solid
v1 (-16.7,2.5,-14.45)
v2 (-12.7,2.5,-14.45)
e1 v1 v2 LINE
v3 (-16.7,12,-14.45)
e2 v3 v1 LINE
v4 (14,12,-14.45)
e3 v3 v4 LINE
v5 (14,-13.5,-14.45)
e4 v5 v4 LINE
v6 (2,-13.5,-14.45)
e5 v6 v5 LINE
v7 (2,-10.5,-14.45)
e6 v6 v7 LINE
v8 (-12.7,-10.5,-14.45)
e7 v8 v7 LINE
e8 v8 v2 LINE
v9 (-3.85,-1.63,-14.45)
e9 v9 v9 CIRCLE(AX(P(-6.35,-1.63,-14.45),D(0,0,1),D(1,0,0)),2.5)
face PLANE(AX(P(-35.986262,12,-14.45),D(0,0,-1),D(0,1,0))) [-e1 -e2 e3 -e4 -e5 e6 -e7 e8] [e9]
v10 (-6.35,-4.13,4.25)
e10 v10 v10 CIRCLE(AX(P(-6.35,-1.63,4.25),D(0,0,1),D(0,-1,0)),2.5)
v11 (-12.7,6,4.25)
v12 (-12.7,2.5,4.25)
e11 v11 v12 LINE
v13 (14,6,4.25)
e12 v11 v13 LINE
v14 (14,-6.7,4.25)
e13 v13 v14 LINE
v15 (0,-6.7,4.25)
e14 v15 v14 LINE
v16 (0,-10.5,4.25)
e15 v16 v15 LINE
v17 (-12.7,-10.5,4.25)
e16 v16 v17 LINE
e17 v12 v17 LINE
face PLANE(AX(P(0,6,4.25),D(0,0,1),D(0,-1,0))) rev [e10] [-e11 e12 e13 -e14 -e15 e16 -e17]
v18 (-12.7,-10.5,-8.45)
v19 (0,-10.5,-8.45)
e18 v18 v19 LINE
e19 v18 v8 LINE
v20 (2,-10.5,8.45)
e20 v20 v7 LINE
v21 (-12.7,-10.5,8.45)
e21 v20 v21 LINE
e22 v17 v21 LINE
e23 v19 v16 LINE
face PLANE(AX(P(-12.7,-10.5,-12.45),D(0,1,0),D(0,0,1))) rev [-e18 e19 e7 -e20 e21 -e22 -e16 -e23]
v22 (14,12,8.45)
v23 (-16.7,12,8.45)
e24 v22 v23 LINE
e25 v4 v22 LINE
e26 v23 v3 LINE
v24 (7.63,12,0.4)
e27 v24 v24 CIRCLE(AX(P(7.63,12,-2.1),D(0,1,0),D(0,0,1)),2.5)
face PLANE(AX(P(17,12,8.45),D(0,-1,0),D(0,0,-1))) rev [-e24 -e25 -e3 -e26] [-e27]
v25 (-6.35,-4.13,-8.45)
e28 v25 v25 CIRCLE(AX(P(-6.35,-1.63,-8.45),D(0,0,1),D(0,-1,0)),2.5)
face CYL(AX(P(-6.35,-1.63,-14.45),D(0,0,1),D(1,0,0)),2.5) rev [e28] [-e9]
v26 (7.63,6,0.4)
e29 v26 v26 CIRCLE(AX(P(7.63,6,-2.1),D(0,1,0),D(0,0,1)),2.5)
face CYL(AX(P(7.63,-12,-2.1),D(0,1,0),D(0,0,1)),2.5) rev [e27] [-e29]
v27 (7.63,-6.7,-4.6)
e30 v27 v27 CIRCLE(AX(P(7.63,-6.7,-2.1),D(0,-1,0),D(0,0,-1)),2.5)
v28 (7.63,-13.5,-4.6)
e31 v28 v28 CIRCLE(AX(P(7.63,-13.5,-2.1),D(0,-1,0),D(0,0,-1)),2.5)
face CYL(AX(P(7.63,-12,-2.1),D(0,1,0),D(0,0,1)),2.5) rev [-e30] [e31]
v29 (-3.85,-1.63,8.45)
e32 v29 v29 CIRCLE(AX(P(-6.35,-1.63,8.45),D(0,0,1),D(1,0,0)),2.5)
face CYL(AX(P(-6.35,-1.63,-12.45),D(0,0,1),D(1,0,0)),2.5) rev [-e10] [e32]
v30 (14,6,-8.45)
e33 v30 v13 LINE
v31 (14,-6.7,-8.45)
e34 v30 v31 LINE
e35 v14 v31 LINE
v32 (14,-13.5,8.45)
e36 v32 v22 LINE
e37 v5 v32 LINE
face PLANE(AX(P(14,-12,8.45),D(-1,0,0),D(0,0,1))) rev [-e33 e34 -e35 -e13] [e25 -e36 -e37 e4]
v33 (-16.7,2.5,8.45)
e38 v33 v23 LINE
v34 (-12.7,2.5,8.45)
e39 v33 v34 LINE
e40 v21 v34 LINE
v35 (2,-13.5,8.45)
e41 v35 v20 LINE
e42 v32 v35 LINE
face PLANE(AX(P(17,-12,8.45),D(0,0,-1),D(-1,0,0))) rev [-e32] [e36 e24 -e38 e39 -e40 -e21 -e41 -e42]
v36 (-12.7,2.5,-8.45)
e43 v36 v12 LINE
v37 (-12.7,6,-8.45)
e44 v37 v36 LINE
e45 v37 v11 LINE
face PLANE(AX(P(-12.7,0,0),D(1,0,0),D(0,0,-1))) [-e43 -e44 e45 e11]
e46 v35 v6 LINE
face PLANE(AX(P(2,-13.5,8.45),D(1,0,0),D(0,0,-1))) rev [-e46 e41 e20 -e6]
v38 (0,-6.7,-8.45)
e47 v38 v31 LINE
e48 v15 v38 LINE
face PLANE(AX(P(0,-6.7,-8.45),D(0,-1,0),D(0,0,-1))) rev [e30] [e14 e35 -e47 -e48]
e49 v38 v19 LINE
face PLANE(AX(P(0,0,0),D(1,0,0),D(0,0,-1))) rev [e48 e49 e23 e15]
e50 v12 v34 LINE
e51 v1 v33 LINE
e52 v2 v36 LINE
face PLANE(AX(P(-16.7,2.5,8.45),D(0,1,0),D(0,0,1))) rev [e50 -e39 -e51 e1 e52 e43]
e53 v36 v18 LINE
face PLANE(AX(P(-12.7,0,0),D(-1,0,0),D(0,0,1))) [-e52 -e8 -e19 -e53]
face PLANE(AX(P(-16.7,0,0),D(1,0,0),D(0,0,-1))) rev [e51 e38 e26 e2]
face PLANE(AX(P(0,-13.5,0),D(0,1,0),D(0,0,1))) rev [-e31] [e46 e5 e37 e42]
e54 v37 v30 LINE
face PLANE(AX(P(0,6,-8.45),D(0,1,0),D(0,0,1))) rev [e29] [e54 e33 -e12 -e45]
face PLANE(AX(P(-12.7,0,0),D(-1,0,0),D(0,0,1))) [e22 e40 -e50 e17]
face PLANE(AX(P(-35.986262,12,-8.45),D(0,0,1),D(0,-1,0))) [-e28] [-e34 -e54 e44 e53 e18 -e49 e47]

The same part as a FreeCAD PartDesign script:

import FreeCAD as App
import Part
import Sketcher
from FreeCAD import Vector


def add_polygon(sketch, points):
    """Adds a closed chain of lines whose ends are joined by coincident constraints."""
    first, n = sketch.GeometryCount, len(points)
    for a, b in zip(points, points[1:] + points[:1]):
        sketch.addGeometry(Part.LineSegment(App.Vector(*a, 0), App.Vector(*b, 0)), False)
    for i in range(n):
        sketch.addConstraint(Sketcher.Constraint("Coincident", first + i, 2, first + (i + 1) % n, 1))

doc = App.newDocument("Part")
params = doc.addObject("Spreadsheet::Sheet", "Params")
for row, (alias, value) in enumerate([
    ("sketch1_width", "24 mm"),
    ("sketch1_height", "16.9 mm"),
    ("pad1_length", "17 mm"),
    ("sketch2_width", "12.7 mm"),
    ("sketch3_diameter", "5 mm"),
    ("sketch4_width", "6 mm"),
    ("sketch4_width2", "18 mm"),
    ("sketch4_height", "12.7 mm"),
    ("sketch4_height2", "4.2 mm"),
    ("pad2_length", "12.7 mm"),
    ("sketch5_width", "17 mm"),
    ("sketch5_height", "16 mm"),
    ("pad3_length", "4 mm"),
    ("sketch6_height", "24 mm"),
    ("sketch6_width", "12.7 mm"),
    ("sketch6_height2", "11.5 mm"),
    ("pad4_length", "4 mm"),
    ("sketch7_diameter", "5 mm"),
    ("sketch8_width", "3 mm"),
    ("sketch8_height", "16.9 mm"),
    ("sketch9_width", "12.7 mm"),
    ("sketch9_height", "1.5 mm"),
    ("sketch10_height", "4 mm"),
    ("sketch10_width", "3.8 mm"),
    ("sketch10_width2", "1.5 mm"),
    ("sketch10_height2", "12.7 mm"),
    ("sketch10_height3", "20.9 mm"),
    ("pocket6_length", "25.039395 mm"),
    ("pocket6_length2", "2 mm"),
    ("sketch11_width", "24 mm"),
    ("sketch11_height", "4 mm"),
    ("sketch12_width", "1.5 mm"),
    ("sketch12_height", "20.9 mm"),
    ("sketch13_height", "4 mm"),
    ("sketch13_width", "22.5 mm"),
    ("sketch14_width", "4 mm"),
    ("sketch14_height", "17 mm"),
    ("sketch15_width", "3.8 mm"),
    ("sketch15_height", "12.7 mm"),
    ("pad5_length", "2 mm"),
    ("sketch16_height", "6 mm"),
    ("sketch16_width", "22.5 mm"),
    ("pad6_length", "26.7 mm"),
    ("sketch17_width", "9.5 mm"),
    ("sketch17_height", "22.9 mm"),
    ("pad7_length", "4 mm"),
    ("sketch18_diameter", "5 mm"),
    ("sketch19_diameter", "5 mm"),
    ("sketch19_width", "12 mm"),
    ("sketch19_height", "22.9 mm"),
    ("pad8_length", "3 mm"),
], start=1):
    params.set(f"A{row}", alias)
    params.set(f"B{row}", "=" + value)
    params.setAlias(f"B{row}", alias)

body = doc.addObject("PartDesign::Body", "Body")

# Sketch on YZ plane
sketch1 = body.newObject("Sketcher::SketchObject", "Sketch")
sketch1.AttachmentSupport = (doc.getObject("YZ_Plane"), [""])
sketch1.MapMode = "FlatFace"
add_polygon(sketch1, [(12, 8), (-12, 8), (-12, -8), (12, -8)])  # lines 0-3
sketch1.addConstraint(Sketcher.Constraint("Horizontal", 0))
sketch1.addConstraint(Sketcher.Constraint("Vertical", 1))
sketch1.addConstraint(Sketcher.Constraint("Horizontal", 2))
sketch1.addConstraint(Sketcher.Constraint("Vertical", 3))
sketch1.addConstraint(Sketcher.Constraint("Symmetric", 0, 2, 2, 2, -1, 1))
sketch1.addConstraint(Sketcher.Constraint("DistanceX", 0, 2, 0, 1, 24.0))
sketch1.addConstraint(Sketcher.Constraint("DistanceY", 1, 2, 1, 1, 16.9))
sketch1.setExpression("Constraints[9]", "Params.sketch1_width")
sketch1.setExpression("Constraints[10]", "Params.sketch1_height")
pad1 = body.newObject("PartDesign::Pad", "Pad")
pad1.Profile = sketch1
pad1.setExpression("Length", "Params.pad1_length")

# Sketch on YZ plane
sketch2 = body.newObject("Sketcher::SketchObject", "Sketch001")
sketch2.AttachmentSupport = (doc.getObject("YZ_Plane"), [""])
sketch2.MapMode = "FlatFace"
sketch2.AttachmentOffset = App.Placement(Vector(0, 0, 17), App.Rotation())
add_polygon(sketch2, [(6, 4), (-7, 4), (-7, -8), (6, -8)])  # lines 0-3
sketch2.addConstraint(Sketcher.Constraint("Horizontal", 0))
sketch2.addConstraint(Sketcher.Constraint("Vertical", 1))
sketch2.addConstraint(Sketcher.Constraint("Horizontal", 2))
sketch2.addConstraint(Sketcher.Constraint("Vertical", 3))
sketch2.addConstraint(Sketcher.Constraint("Equal", 2, 1))
sketch2.addConstraint(Sketcher.Constraint("DistanceX", 0, 2, 0, 1, 12.7))
sketch2.addConstraint(Sketcher.Constraint("DistanceX", -1, 1, 2, 2, 6.0))
sketch2.addConstraint(Sketcher.Constraint("DistanceY", -1, 1, 0, 2, 4.25))
sketch2.setExpression("Constraints[9]", "Params.sketch2_width")
pocket1 = body.newObject("PartDesign::Pocket", "Pocket")
pocket1.Profile = sketch2
pocket1.Type = "ThroughAll"

# Sketch on XZ plane
sketch3 = body.newObject("Sketcher::SketchObject", "Sketch002")
sketch3.AttachmentSupport = (doc.getObject("XZ_Plane"), [""])
sketch3.MapMode = "FlatFace"
sketch3.AttachmentOffset = App.Placement(Vector(0, 0, -12), App.Rotation())
sketch3.addGeometry(Part.Circle(Vector(7.6, -2.1, 0), Vector(0, 0, 1), 2.5), False)
sketch3.addConstraint(Sketcher.Constraint("Diameter", 0, 5.0))
sketch3.addConstraint(Sketcher.Constraint("DistanceY", 0, 3, -1, 1, 2.1))
sketch3.addConstraint(Sketcher.Constraint("DistanceX", -1, 1, 0, 3, 7.63))
sketch3.setExpression("Constraints[0]", "Params.sketch3_diameter")
pocket2 = body.newObject("PartDesign::Pocket", "Pocket001")
pocket2.Profile = sketch3
pocket2.Type = "ThroughAll"
pocket2.Reversed = True

# Sketch on YZ plane
sketch4 = body.newObject("Sketcher::SketchObject", "Sketch003")
sketch4.AttachmentSupport = (doc.getObject("YZ_Plane"), [""])
sketch4.MapMode = "FlatFace"
add_polygon(sketch4, [(12, -8.4), (6, -8.4), (6, 4.2), (-12, 4.2), (-12, 8.4), (12, 8.4)])  # lines 0-5
sketch4.addConstraint(Sketcher.Constraint("Horizontal", 0))
sketch4.addConstraint(Sketcher.Constraint("Vertical", 1))
sketch4.addConstraint(Sketcher.Constraint("Horizontal", 2))
sketch4.addConstraint(Sketcher.Constraint("Vertical", 3))
sketch4.addConstraint(Sketcher.Constraint("Horizontal", 4))
sketch4.addConstraint(Sketcher.Constraint("Vertical", 5))
sketch4.addConstraint(Sketcher.Constraint("Symmetric", 3, 2, 5, 2, -1, 1))
sketch4.addConstraint(Sketcher.Constraint("DistanceX", 0, 2, 0, 1, 6.0))
sketch4.addConstraint(Sketcher.Constraint("DistanceX", 2, 2, 2, 1, 18.0))
sketch4.addConstraint(Sketcher.Constraint("DistanceY", 1, 1, 1, 2, 12.7))
sketch4.addConstraint(Sketcher.Constraint("DistanceY", 3, 1, 3, 2, 4.2))
sketch4.setExpression("Constraints[13]", "Params.sketch4_width")
sketch4.setExpression("Constraints[14]", "Params.sketch4_width2")
sketch4.setExpression("Constraints[15]", "Params.sketch4_height")
sketch4.setExpression("Constraints[16]", "Params.sketch4_height2")
pad2 = body.newObject("PartDesign::Pad", "Pad001")
pad2.Profile = sketch4
pad2.setExpression("Length", "Params.pad2_length")
pad2.Reversed = True

# Sketch on YZ plane
sketch5 = body.newObject("Sketcher::SketchObject", "Sketch004")
sketch5.AttachmentSupport = (doc.getObject("YZ_Plane"), [""])
sketch5.MapMode = "FlatFace"
sketch5.AttachmentOffset = App.Placement(Vector(0, 0, -12.7), App.Rotation())
add_polygon(sketch5, [(12, 8), (12, -8), (-5, 8)])  # lines 0-2
sketch5.addConstraint(Sketcher.Constraint("Vertical", 0))
sketch5.addConstraint(Sketcher.Constraint("Horizontal", 2))
sketch5.addConstraint(Sketcher.Constraint("DistanceX", 2, 1, 2, 2, 17.0))
sketch5.addConstraint(Sketcher.Constraint("DistanceY", 0, 2, 0, 1, 16.0))
sketch5.addConstraint(Sketcher.Constraint("DistanceX", -1, 1, 0, 2, 12.0))
sketch5.addConstraint(Sketcher.Constraint("DistanceY", 0, 2, -1, 1, 7.55))
sketch5.setExpression("Constraints[5]", "Params.sketch5_width")
sketch5.setExpression("Constraints[6]", "Params.sketch5_height")
pad3 = body.newObject("PartDesign::Pad", "Pad002")
pad3.Profile = sketch5
pad3.setExpression("Length", "Params.pad3_length")
pad3.Reversed = True

# Sketch on XY plane
sketch6 = body.newObject("Sketcher::SketchObject", "Sketch005")
sketch6.AttachmentSupport = (doc.getObject("XY_Plane"), [""])
sketch6.MapMode = "FlatFace"
sketch6.AttachmentOffset = App.Placement(Vector(0, 0, -8.45), App.Rotation())
add_polygon(sketch6, [(-13, 12), (0, 12), (0, 0), (11, -12), (-13, -12)])  # lines 0-4
sketch6.addConstraint(Sketcher.Constraint("Horizontal", 0))
sketch6.addConstraint(Sketcher.Constraint("Vertical", 1))
sketch6.addConstraint(Sketcher.Constraint("Horizontal", 3))
sketch6.addConstraint(Sketcher.Constraint("Vertical", 4))
sketch6.addConstraint(Sketcher.Constraint("PointOnObject", 0, 2, -2))
sketch6.addConstraint(Sketcher.Constraint("DistanceY", 4, 1, 4, 2, 24.0))
sketch6.addConstraint(Sketcher.Constraint("DistanceX", 0, 1, 0, 2, 12.7))
sketch6.addConstraint(Sketcher.Constraint("DistanceY", 1, 2, 1, 1, 11.5))
sketch6.addConstraint(Sketcher.Constraint("DistanceY", -1, 1, 0, 2, 12.0))
sketch6.addConstraint(Sketcher.Constraint("DistanceX", 3, 2, 3, 1, 24.145355))
sketch6.setExpression("Constraints[10]", "Params.sketch6_height")
sketch6.setExpression("Constraints[11]", "Params.sketch6_width")
sketch6.setExpression("Constraints[12]", "Params.sketch6_height2")
pad4 = body.newObject("PartDesign::Pad", "Pad003")
pad4.Profile = sketch6
pad4.setExpression("Length", "Params.pad4_length")
pad4.Reversed = True

# Sketch on XY plane
sketch7 = body.newObject("Sketcher::SketchObject", "Sketch006")
sketch7.AttachmentSupport = (doc.getObject("XY_Plane"), [""])
sketch7.MapMode = "FlatFace"
sketch7.AttachmentOffset = App.Placement(Vector(0, 0, 8.45), App.Rotation())
sketch7.addGeometry(Part.Circle(Vector(-6.3, -1.6, 0), Vector(0, 0, 1), 2.5), False)
sketch7.addConstraint(Sketcher.Constraint("Diameter", 0, 5.0))
sketch7.addConstraint(Sketcher.Constraint("DistanceX", 0, 3, -1, 1, 6.35))
sketch7.addConstraint(Sketcher.Constraint("DistanceY", 0, 3, -1, 1, 1.63))
sketch7.setExpression("Constraints[0]", "Params.sketch7_diameter")
pocket3 = body.newObject("PartDesign::Pocket", "Pocket002")
pocket3.Profile = sketch7
pocket3.Type = "ThroughAll"

# Sketch on XZ plane
sketch8 = body.newObject("Sketcher::SketchObject", "Sketch007")
sketch8.AttachmentSupport = (doc.getObject("XZ_Plane"), [""])
sketch8.MapMode = "FlatFace"
sketch8.AttachmentOffset = App.Placement(Vector(0, 0, -12), App.Rotation())
add_polygon(sketch8, [(14, -8.4), (14, 8.4), (17, 8.4), (17, -8.4)])  # lines 0-3
sketch8.addConstraint(Sketcher.Constraint("Vertical", 0))
sketch8.addConstraint(Sketcher.Constraint("Horizontal", 1))
sketch8.addConstraint(Sketcher.Constraint("Vertical", 2))
sketch8.addConstraint(Sketcher.Constraint("Horizontal", 3))
sketch8.addConstraint(Sketcher.Constraint("DistanceX", 1, 1, 1, 2, 3.0))
sketch8.addConstraint(Sketcher.Constraint("DistanceY", 0, 1, 0, 2, 16.9))
sketch8.addConstraint(Sketcher.Constraint("DistanceX", -1, 1, 0, 2, 14.0))
sketch8.addConstraint(Sketcher.Constraint("DistanceY", -1, 1, 0, 2, 8.45))
sketch8.setExpression("Constraints[8]", "Params.sketch8_width")
sketch8.setExpression("Constraints[9]", "Params.sketch8_height")
pocket4 = body.newObject("PartDesign::Pocket", "Pocket003")
pocket4.Profile = sketch8
pocket4.Type = "ThroughAll"
pocket4.Reversed = True

# Sketch on XY plane
sketch9 = body.newObject("Sketcher::SketchObject", "Sketch008")
sketch9.AttachmentSupport = (doc.getObject("XY_Plane"), [""])
sketch9.MapMode = "FlatFace"
sketch9.AttachmentOffset = App.Placement(Vector(0, 0, 8.45), App.Rotation())
add_polygon(sketch9, [(-12.7, -10.5), (-12.7, -12), (0, -12), (0, -10.5)])  # lines 0-3
sketch9.addConstraint(Sketcher.Constraint("Vertical", 0))
sketch9.addConstraint(Sketcher.Constraint("Horizontal", 1))
sketch9.addConstraint(Sketcher.Constraint("Vertical", 2))
sketch9.addConstraint(Sketcher.Constraint("Horizontal", 3))
sketch9.addConstraint(Sketcher.Constraint("PointOnObject", 1, 2, -2))
sketch9.addConstraint(Sketcher.Constraint("DistanceX", 1, 1, 1, 2, 12.7))
sketch9.addConstraint(Sketcher.Constraint("DistanceY", 0, 2, 0, 1, 1.5))
sketch9.addConstraint(Sketcher.Constraint("DistanceY", 0, 2, -1, 1, 12.0))
sketch9.setExpression("Constraints[9]", "Params.sketch9_width")
sketch9.setExpression("Constraints[10]", "Params.sketch9_height")
pocket5 = body.newObject("PartDesign::Pocket", "Pocket004")
pocket5.Profile = sketch9
pocket5.Type = "ThroughAll"

# Sketch on YZ plane
sketch10 = body.newObject("Sketcher::SketchObject", "Sketch009")
sketch10.AttachmentSupport = (doc.getObject("YZ_Plane"), [""])
sketch10.MapMode = "FlatFace"
add_polygon(sketch10, [(-6.7, 4.2), (-6.7, -8.4), (-10.5, -8.4), (-10.5, -12.4), (-12, -12.4), (-12, 8.4), (-10.5, 8.4), (-10.5, 4.2)])  # lines 0-7
sketch10.addConstraint(Sketcher.Constraint("Vertical", 0))
sketch10.addConstraint(Sketcher.Constraint("Horizontal", 1))
sketch10.addConstraint(Sketcher.Constraint("Vertical", 2))
sketch10.addConstraint(Sketcher.Constraint("Horizontal", 3))
sketch10.addConstraint(Sketcher.Constraint("Vertical", 4))
sketch10.addConstraint(Sketcher.Constraint("Horizontal", 5))
sketch10.addConstraint(Sketcher.Constraint("Vertical", 6))
sketch10.addConstraint(Sketcher.Constraint("Horizontal", 7))
sketch10.addConstraint(Sketcher.Constraint("Symmetric", 1, 2, 5, 2, -1))
sketch10.addConstraint(Sketcher.Constraint("DistanceY", 2, 2, 2, 1, 4.0))
sketch10.addConstraint(Sketcher.Constraint("DistanceX", 1, 2, 1, 1, 3.8))
sketch10.addConstraint(Sketcher.Constraint("DistanceX", 3, 2, 3, 1, 1.5))
sketch10.addConstraint(Sketcher.Constraint("DistanceY", 0, 2, 0, 1, 12.7))
sketch10.addConstraint(Sketcher.Constraint("DistanceY", 4, 1, 4, 2, 20.9))
sketch10.addConstraint(Sketcher.Constraint("DistanceX", 3, 2, -1, 1, 12.0))
sketch10.setExpression("Constraints[17]", "Params.sketch10_height")
sketch10.setExpression("Constraints[18]", "Params.sketch10_width")
sketch10.setExpression("Constraints[19]", "Params.sketch10_width2")
sketch10.setExpression("Constraints[20]", "Params.sketch10_height2")
sketch10.setExpression("Constraints[21]", "Params.sketch10_height3")
pocket6 = body.newObject("PartDesign::Pocket", "Pocket005")
pocket6.Profile = sketch10
pocket6.Type = "TwoLengths"
pocket6.setExpression("Length", "Params.pocket6_length")
pocket6.setExpression("Length2", "Params.pocket6_length2")

# Sketch on YZ plane
sketch11 = body.newObject("Sketcher::SketchObject", "Sketch010")
sketch11.AttachmentSupport = (doc.getObject("YZ_Plane"), [""])
sketch11.MapMode = "FlatFace"
add_polygon(sketch11, [(12, -8.4), (-12, -8.4), (-12, -12.4), (12, -12.4)])  # lines 0-3
sketch11.addConstraint(Sketcher.Constraint("Horizontal", 0))
sketch11.addConstraint(Sketcher.Constraint("Vertical", 1))
sketch11.addConstraint(Sketcher.Constraint("Horizontal", 2))
sketch11.addConstraint(Sketcher.Constraint("Vertical", 3))
sketch11.addConstraint(Sketcher.Constraint("DistanceX", 0, 2, 0, 1, 24.0))
sketch11.addConstraint(Sketcher.Constraint("DistanceY", 1, 2, 1, 1, 4.0))
sketch11.addConstraint(Sketcher.Constraint("DistanceX", 0, 2, -1, 1, 12.0))
sketch11.addConstraint(Sketcher.Constraint("DistanceY", 0, 2, -1, 1, 8.45))
sketch11.setExpression("Constraints[8]", "Params.sketch11_width")
sketch11.setExpression("Constraints[9]", "Params.sketch11_height")
pocket7 = body.newObject("PartDesign::Pocket", "Pocket006")
pocket7.Profile = sketch11
pocket7.Type = "ThroughAll"

# Sketch on YZ plane
sketch12 = body.newObject("Sketcher::SketchObject", "Sketch011")
sketch12.AttachmentSupport = (doc.getObject("YZ_Plane"), [""])
sketch12.MapMode = "FlatFace"
sketch12.AttachmentOffset = App.Placement(Vector(0, 0, 2), App.Rotation())
add_polygon(sketch12, [(-10.5, -12.4), (-12, -12.4), (-12, 8.4), (-10.5, 8.4)])  # lines 0-3
sketch12.addConstraint(Sketcher.Constraint("Horizontal", 0))
sketch12.addConstraint(Sketcher.Constraint("Vertical", 1))
sketch12.addConstraint(Sketcher.Constraint("Horizontal", 2))
sketch12.addConstraint(Sketcher.Constraint("Vertical", 3))
sketch12.addConstraint(Sketcher.Constraint("DistanceX", 0, 2, 0, 1, 1.5))
sketch12.addConstraint(Sketcher.Constraint("DistanceY", 1, 1, 1, 2, 20.9))
sketch12.addConstraint(Sketcher.Constraint("DistanceX", 0, 2, -1, 1, 12.0))
sketch12.addConstraint(Sketcher.Constraint("DistanceY", 0, 2, -1, 1, 12.45))
sketch12.setExpression("Constraints[8]", "Params.sketch12_width")
sketch12.setExpression("Constraints[9]", "Params.sketch12_height")
pocket8 = body.newObject("PartDesign::Pocket", "Pocket007")
pocket8.Profile = sketch12
pocket8.Type = "ThroughAll"
pocket8.Reversed = True

# Sketch on YZ plane
sketch13 = body.newObject("Sketcher::SketchObject", "Sketch012")
sketch13.AttachmentSupport = (doc.getObject("YZ_Plane"), [""])
sketch13.MapMode = "FlatFace"
sketch13.AttachmentOffset = App.Placement(Vector(0, 0, 14), App.Rotation())
add_polygon(sketch13, [(12, -8.4), (-10.5, -8.4), (-10.5, -12.4), (12, -12.4)])  # lines 0-3
sketch13.addConstraint(Sketcher.Constraint("Horizontal", 0))
sketch13.addConstraint(Sketcher.Constraint("Vertical", 1))
sketch13.addConstraint(Sketcher.Constraint("Horizontal", 2))
sketch13.addConstraint(Sketcher.Constraint("Vertical", 3))
sketch13.addConstraint(Sketcher.Constraint("DistanceY", 1, 2, 1, 1, 4.0))
sketch13.addConstraint(Sketcher.Constraint("DistanceX", 0, 2, 0, 1, 22.5))
sketch13.addConstraint(Sketcher.Constraint("DistanceX", -1, 1, 2, 2, 12.0))
sketch13.addConstraint(Sketcher.Constraint("DistanceY", 0, 2, -1, 1, 8.45))
sketch13.setExpression("Constraints[8]", "Params.sketch13_height")
sketch13.setExpression("Constraints[9]", "Params.sketch13_width")
pocket9 = body.newObject("PartDesign::Pocket", "Pocket008")
pocket9.Profile = sketch13
pocket9.Type = "ThroughAll"

# Sketch on XY plane
sketch14 = body.newObject("Sketcher::SketchObject", "Sketch013")
sketch14.AttachmentSupport = (doc.getObject("XY_Plane"), [""])
sketch14.MapMode = "FlatFace"
sketch14.AttachmentOffset = App.Placement(Vector(0, 0, -8.45), App.Rotation())
add_polygon(sketch14, [(-12.7, 12), (-12.7, -5), (-16.7, -5), (-16.7, 12)])  # lines 0-3
sketch14.addConstraint(Sketcher.Constraint("Vertical", 0))
sketch14.addConstraint(Sketcher.Constraint("Horizontal", 1))
sketch14.addConstraint(Sketcher.Constraint("Vertical", 2))
sketch14.addConstraint(Sketcher.Constraint("Horizontal", 3))
sketch14.addConstraint(Sketcher.Constraint("DistanceX", 1, 2, 1, 1, 4.0))
sketch14.addConstraint(Sketcher.Constraint("DistanceY", 0, 2, 0, 1, 17.0))
sketch14.addConstraint(Sketcher.Constraint("DistanceY", 0, 2, -1, 1, 5.0))
sketch14.addConstraint(Sketcher.Constraint("DistanceX", 0, 2, -1, 1, 12.7))
sketch14.setExpression("Constraints[8]", "Params.sketch14_width")
sketch14.setExpression("Constraints[9]", "Params.sketch14_height")
pocket10 = body.newObject("PartDesign::Pocket", "Pocket009")
pocket10.Profile = sketch14
pocket10.Type = "ThroughAll"
pocket10.Reversed = True

# Sketch on YZ plane
sketch15 = body.newObject("Sketcher::SketchObject", "Sketch014")
sketch15.AttachmentSupport = (doc.getObject("YZ_Plane"), [""])
sketch15.MapMode = "FlatFace"
sketch15.AttachmentOffset = App.Placement(Vector(0, 0, 2), App.Rotation())
add_polygon(sketch15, [(-6.7, -8.4), (-10.5, -8.4), (-10.5, 4.2), (-6.7, 4.2)])  # lines 0-3
sketch15.addConstraint(Sketcher.Constraint("Horizontal", 0))
sketch15.addConstraint(Sketcher.Constraint("Vertical", 1))
sketch15.addConstraint(Sketcher.Constraint("Horizontal", 2))
sketch15.addConstraint(Sketcher.Constraint("Vertical", 3))
sketch15.addConstraint(Sketcher.Constraint("DistanceX", 0, 2, 0, 1, 3.8))
sketch15.addConstraint(Sketcher.Constraint("DistanceY", 1, 1, 1, 2, 12.7))
sketch15.addConstraint(Sketcher.Constraint("DistanceX", 0, 2, -1, 1, 10.5))
sketch15.addConstraint(Sketcher.Constraint("DistanceY", 0, 2, -1, 1, 8.45))
sketch15.setExpression("Constraints[8]", "Params.sketch15_width")
sketch15.setExpression("Constraints[9]", "Params.sketch15_height")
pad5 = body.newObject("PartDesign::Pad", "Pad004")
pad5.Profile = sketch15
pad5.setExpression("Length", "Params.pad5_length")
pad5.Reversed = True

# Sketch on YZ plane
sketch16 = body.newObject("Sketcher::SketchObject", "Sketch015")
sketch16.AttachmentSupport = (doc.getObject("YZ_Plane"), [""])
sketch16.MapMode = "FlatFace"
sketch16.AttachmentOffset = App.Placement(Vector(0, 0, 14), App.Rotation())
add_polygon(sketch16, [(12, -8), (-10, -8), (-10, -14), (12, -14)])  # lines 0-3
sketch16.addConstraint(Sketcher.Constraint("Horizontal", 0))
sketch16.addConstraint(Sketcher.Constraint("Vertical", 1))
sketch16.addConstraint(Sketcher.Constraint("Horizontal", 2))
sketch16.addConstraint(Sketcher.Constraint("Vertical", 3))
sketch16.addConstraint(Sketcher.Constraint("DistanceY", 1, 2, 1, 1, 6.0))
sketch16.addConstraint(Sketcher.Constraint("DistanceX", 0, 2, 0, 1, 22.5))
sketch16.addConstraint(Sketcher.Constraint("DistanceX", -1, 1, 2, 2, 12.0))
sketch16.addConstraint(Sketcher.Constraint("DistanceY", 0, 2, -1, 1, 8.45))
sketch16.setExpression("Constraints[8]", "Params.sketch16_height")
sketch16.setExpression("Constraints[9]", "Params.sketch16_width")
pad6 = body.newObject("PartDesign::Pad", "Pad005")
pad6.Profile = sketch16
pad6.setExpression("Length", "Params.pad6_length")
pad6.Reversed = True

# Sketch on YZ plane
sketch17 = body.newObject("Sketcher::SketchObject", "Sketch016")
sketch17.AttachmentSupport = (doc.getObject("YZ_Plane"), [""])
sketch17.MapMode = "FlatFace"
sketch17.AttachmentOffset = App.Placement(Vector(0, 0, -12.7), App.Rotation())
add_polygon(sketch17, [(12, -14), (2, -14), (2, 8), (12, 8)])  # lines 0-3
sketch17.addConstraint(Sketcher.Constraint("Horizontal", 0))
sketch17.addConstraint(Sketcher.Constraint("Vertical", 1))
sketch17.addConstraint(Sketcher.Constraint("Horizontal", 2))
sketch17.addConstraint(Sketcher.Constraint("Vertical", 3))
sketch17.addConstraint(Sketcher.Constraint("DistanceX", 0, 2, 0, 1, 9.5))
sketch17.addConstraint(Sketcher.Constraint("DistanceY", 1, 1, 1, 2, 22.9))
sketch17.addConstraint(Sketcher.Constraint("DistanceX", -1, 1, 2, 2, 12.0))
sketch17.addConstraint(Sketcher.Constraint("DistanceY", 0, 2, -1, 1, 14.45))
sketch17.setExpression("Constraints[8]", "Params.sketch17_width")
sketch17.setExpression("Constraints[9]", "Params.sketch17_height")
pad7 = body.newObject("PartDesign::Pad", "Pad006")
pad7.Profile = sketch17
pad7.setExpression("Length", "Params.pad7_length")
pad7.Reversed = True

# Sketch on XY plane
sketch18 = body.newObject("Sketcher::SketchObject", "Sketch017")
sketch18.AttachmentSupport = (doc.getObject("XY_Plane"), [""])
sketch18.MapMode = "FlatFace"
sketch18.AttachmentOffset = App.Placement(Vector(0, 0, 8.45), App.Rotation())
sketch18.addGeometry(Part.Circle(Vector(-6.3, -1.6, 0), Vector(0, 0, 1), 2.5), False)
sketch18.addConstraint(Sketcher.Constraint("Diameter", 0, 5.0))
sketch18.addConstraint(Sketcher.Constraint("DistanceX", 0, 3, -1, 1, 6.35))
sketch18.addConstraint(Sketcher.Constraint("DistanceY", 0, 3, -1, 1, 1.63))
sketch18.setExpression("Constraints[0]", "Params.sketch18_diameter")
pocket11 = body.newObject("PartDesign::Pocket", "Pocket010")
pocket11.Profile = sketch18
pocket11.Type = "ThroughAll"

# Sketch on XZ plane
sketch19 = body.newObject("Sketcher::SketchObject", "Sketch018")
sketch19.AttachmentSupport = (doc.getObject("XZ_Plane"), [""])
sketch19.MapMode = "FlatFace"
sketch19.AttachmentOffset = App.Placement(Vector(0, 0, 10.5), App.Rotation())
add_polygon(sketch19, [(2, 8.4), (2, -14.4), (14, -14.4), (14, 8.4)])  # lines 0-3
sketch19.addGeometry(Part.Circle(Vector(7.6, -2.1, 0), Vector(0, 0, 1), 2.5), False)  # 4
sketch19.addConstraint(Sketcher.Constraint("Vertical", 0))
sketch19.addConstraint(Sketcher.Constraint("Horizontal", 1))
sketch19.addConstraint(Sketcher.Constraint("Vertical", 2))
sketch19.addConstraint(Sketcher.Constraint("Horizontal", 3))
sketch19.addConstraint(Sketcher.Constraint("Diameter", 4, 5.0))
sketch19.addConstraint(Sketcher.Constraint("DistanceX", 1, 1, 1, 2, 12.0))
sketch19.addConstraint(Sketcher.Constraint("DistanceY", 0, 2, 0, 1, 22.9))
sketch19.addConstraint(Sketcher.Constraint("DistanceX", -1, 1, 0, 2, 2.0))
sketch19.addConstraint(Sketcher.Constraint("DistanceY", 4, 3, -1, 1, 2.1))
sketch19.addConstraint(Sketcher.Constraint("DistanceX", -1, 1, 4, 3, 7.63))
sketch19.addConstraint(Sketcher.Constraint("DistanceY", 0, 2, -1, 1, 14.45))
sketch19.setExpression("Constraints[8]", "Params.sketch19_diameter")
sketch19.setExpression("Constraints[9]", "Params.sketch19_width")
sketch19.setExpression("Constraints[10]", "Params.sketch19_height")
pad8 = body.newObject("PartDesign::Pad", "Pad007")
pad8.Profile = sketch19
pad8.setExpression("Length", "Params.pad8_length")

doc.recompute()
